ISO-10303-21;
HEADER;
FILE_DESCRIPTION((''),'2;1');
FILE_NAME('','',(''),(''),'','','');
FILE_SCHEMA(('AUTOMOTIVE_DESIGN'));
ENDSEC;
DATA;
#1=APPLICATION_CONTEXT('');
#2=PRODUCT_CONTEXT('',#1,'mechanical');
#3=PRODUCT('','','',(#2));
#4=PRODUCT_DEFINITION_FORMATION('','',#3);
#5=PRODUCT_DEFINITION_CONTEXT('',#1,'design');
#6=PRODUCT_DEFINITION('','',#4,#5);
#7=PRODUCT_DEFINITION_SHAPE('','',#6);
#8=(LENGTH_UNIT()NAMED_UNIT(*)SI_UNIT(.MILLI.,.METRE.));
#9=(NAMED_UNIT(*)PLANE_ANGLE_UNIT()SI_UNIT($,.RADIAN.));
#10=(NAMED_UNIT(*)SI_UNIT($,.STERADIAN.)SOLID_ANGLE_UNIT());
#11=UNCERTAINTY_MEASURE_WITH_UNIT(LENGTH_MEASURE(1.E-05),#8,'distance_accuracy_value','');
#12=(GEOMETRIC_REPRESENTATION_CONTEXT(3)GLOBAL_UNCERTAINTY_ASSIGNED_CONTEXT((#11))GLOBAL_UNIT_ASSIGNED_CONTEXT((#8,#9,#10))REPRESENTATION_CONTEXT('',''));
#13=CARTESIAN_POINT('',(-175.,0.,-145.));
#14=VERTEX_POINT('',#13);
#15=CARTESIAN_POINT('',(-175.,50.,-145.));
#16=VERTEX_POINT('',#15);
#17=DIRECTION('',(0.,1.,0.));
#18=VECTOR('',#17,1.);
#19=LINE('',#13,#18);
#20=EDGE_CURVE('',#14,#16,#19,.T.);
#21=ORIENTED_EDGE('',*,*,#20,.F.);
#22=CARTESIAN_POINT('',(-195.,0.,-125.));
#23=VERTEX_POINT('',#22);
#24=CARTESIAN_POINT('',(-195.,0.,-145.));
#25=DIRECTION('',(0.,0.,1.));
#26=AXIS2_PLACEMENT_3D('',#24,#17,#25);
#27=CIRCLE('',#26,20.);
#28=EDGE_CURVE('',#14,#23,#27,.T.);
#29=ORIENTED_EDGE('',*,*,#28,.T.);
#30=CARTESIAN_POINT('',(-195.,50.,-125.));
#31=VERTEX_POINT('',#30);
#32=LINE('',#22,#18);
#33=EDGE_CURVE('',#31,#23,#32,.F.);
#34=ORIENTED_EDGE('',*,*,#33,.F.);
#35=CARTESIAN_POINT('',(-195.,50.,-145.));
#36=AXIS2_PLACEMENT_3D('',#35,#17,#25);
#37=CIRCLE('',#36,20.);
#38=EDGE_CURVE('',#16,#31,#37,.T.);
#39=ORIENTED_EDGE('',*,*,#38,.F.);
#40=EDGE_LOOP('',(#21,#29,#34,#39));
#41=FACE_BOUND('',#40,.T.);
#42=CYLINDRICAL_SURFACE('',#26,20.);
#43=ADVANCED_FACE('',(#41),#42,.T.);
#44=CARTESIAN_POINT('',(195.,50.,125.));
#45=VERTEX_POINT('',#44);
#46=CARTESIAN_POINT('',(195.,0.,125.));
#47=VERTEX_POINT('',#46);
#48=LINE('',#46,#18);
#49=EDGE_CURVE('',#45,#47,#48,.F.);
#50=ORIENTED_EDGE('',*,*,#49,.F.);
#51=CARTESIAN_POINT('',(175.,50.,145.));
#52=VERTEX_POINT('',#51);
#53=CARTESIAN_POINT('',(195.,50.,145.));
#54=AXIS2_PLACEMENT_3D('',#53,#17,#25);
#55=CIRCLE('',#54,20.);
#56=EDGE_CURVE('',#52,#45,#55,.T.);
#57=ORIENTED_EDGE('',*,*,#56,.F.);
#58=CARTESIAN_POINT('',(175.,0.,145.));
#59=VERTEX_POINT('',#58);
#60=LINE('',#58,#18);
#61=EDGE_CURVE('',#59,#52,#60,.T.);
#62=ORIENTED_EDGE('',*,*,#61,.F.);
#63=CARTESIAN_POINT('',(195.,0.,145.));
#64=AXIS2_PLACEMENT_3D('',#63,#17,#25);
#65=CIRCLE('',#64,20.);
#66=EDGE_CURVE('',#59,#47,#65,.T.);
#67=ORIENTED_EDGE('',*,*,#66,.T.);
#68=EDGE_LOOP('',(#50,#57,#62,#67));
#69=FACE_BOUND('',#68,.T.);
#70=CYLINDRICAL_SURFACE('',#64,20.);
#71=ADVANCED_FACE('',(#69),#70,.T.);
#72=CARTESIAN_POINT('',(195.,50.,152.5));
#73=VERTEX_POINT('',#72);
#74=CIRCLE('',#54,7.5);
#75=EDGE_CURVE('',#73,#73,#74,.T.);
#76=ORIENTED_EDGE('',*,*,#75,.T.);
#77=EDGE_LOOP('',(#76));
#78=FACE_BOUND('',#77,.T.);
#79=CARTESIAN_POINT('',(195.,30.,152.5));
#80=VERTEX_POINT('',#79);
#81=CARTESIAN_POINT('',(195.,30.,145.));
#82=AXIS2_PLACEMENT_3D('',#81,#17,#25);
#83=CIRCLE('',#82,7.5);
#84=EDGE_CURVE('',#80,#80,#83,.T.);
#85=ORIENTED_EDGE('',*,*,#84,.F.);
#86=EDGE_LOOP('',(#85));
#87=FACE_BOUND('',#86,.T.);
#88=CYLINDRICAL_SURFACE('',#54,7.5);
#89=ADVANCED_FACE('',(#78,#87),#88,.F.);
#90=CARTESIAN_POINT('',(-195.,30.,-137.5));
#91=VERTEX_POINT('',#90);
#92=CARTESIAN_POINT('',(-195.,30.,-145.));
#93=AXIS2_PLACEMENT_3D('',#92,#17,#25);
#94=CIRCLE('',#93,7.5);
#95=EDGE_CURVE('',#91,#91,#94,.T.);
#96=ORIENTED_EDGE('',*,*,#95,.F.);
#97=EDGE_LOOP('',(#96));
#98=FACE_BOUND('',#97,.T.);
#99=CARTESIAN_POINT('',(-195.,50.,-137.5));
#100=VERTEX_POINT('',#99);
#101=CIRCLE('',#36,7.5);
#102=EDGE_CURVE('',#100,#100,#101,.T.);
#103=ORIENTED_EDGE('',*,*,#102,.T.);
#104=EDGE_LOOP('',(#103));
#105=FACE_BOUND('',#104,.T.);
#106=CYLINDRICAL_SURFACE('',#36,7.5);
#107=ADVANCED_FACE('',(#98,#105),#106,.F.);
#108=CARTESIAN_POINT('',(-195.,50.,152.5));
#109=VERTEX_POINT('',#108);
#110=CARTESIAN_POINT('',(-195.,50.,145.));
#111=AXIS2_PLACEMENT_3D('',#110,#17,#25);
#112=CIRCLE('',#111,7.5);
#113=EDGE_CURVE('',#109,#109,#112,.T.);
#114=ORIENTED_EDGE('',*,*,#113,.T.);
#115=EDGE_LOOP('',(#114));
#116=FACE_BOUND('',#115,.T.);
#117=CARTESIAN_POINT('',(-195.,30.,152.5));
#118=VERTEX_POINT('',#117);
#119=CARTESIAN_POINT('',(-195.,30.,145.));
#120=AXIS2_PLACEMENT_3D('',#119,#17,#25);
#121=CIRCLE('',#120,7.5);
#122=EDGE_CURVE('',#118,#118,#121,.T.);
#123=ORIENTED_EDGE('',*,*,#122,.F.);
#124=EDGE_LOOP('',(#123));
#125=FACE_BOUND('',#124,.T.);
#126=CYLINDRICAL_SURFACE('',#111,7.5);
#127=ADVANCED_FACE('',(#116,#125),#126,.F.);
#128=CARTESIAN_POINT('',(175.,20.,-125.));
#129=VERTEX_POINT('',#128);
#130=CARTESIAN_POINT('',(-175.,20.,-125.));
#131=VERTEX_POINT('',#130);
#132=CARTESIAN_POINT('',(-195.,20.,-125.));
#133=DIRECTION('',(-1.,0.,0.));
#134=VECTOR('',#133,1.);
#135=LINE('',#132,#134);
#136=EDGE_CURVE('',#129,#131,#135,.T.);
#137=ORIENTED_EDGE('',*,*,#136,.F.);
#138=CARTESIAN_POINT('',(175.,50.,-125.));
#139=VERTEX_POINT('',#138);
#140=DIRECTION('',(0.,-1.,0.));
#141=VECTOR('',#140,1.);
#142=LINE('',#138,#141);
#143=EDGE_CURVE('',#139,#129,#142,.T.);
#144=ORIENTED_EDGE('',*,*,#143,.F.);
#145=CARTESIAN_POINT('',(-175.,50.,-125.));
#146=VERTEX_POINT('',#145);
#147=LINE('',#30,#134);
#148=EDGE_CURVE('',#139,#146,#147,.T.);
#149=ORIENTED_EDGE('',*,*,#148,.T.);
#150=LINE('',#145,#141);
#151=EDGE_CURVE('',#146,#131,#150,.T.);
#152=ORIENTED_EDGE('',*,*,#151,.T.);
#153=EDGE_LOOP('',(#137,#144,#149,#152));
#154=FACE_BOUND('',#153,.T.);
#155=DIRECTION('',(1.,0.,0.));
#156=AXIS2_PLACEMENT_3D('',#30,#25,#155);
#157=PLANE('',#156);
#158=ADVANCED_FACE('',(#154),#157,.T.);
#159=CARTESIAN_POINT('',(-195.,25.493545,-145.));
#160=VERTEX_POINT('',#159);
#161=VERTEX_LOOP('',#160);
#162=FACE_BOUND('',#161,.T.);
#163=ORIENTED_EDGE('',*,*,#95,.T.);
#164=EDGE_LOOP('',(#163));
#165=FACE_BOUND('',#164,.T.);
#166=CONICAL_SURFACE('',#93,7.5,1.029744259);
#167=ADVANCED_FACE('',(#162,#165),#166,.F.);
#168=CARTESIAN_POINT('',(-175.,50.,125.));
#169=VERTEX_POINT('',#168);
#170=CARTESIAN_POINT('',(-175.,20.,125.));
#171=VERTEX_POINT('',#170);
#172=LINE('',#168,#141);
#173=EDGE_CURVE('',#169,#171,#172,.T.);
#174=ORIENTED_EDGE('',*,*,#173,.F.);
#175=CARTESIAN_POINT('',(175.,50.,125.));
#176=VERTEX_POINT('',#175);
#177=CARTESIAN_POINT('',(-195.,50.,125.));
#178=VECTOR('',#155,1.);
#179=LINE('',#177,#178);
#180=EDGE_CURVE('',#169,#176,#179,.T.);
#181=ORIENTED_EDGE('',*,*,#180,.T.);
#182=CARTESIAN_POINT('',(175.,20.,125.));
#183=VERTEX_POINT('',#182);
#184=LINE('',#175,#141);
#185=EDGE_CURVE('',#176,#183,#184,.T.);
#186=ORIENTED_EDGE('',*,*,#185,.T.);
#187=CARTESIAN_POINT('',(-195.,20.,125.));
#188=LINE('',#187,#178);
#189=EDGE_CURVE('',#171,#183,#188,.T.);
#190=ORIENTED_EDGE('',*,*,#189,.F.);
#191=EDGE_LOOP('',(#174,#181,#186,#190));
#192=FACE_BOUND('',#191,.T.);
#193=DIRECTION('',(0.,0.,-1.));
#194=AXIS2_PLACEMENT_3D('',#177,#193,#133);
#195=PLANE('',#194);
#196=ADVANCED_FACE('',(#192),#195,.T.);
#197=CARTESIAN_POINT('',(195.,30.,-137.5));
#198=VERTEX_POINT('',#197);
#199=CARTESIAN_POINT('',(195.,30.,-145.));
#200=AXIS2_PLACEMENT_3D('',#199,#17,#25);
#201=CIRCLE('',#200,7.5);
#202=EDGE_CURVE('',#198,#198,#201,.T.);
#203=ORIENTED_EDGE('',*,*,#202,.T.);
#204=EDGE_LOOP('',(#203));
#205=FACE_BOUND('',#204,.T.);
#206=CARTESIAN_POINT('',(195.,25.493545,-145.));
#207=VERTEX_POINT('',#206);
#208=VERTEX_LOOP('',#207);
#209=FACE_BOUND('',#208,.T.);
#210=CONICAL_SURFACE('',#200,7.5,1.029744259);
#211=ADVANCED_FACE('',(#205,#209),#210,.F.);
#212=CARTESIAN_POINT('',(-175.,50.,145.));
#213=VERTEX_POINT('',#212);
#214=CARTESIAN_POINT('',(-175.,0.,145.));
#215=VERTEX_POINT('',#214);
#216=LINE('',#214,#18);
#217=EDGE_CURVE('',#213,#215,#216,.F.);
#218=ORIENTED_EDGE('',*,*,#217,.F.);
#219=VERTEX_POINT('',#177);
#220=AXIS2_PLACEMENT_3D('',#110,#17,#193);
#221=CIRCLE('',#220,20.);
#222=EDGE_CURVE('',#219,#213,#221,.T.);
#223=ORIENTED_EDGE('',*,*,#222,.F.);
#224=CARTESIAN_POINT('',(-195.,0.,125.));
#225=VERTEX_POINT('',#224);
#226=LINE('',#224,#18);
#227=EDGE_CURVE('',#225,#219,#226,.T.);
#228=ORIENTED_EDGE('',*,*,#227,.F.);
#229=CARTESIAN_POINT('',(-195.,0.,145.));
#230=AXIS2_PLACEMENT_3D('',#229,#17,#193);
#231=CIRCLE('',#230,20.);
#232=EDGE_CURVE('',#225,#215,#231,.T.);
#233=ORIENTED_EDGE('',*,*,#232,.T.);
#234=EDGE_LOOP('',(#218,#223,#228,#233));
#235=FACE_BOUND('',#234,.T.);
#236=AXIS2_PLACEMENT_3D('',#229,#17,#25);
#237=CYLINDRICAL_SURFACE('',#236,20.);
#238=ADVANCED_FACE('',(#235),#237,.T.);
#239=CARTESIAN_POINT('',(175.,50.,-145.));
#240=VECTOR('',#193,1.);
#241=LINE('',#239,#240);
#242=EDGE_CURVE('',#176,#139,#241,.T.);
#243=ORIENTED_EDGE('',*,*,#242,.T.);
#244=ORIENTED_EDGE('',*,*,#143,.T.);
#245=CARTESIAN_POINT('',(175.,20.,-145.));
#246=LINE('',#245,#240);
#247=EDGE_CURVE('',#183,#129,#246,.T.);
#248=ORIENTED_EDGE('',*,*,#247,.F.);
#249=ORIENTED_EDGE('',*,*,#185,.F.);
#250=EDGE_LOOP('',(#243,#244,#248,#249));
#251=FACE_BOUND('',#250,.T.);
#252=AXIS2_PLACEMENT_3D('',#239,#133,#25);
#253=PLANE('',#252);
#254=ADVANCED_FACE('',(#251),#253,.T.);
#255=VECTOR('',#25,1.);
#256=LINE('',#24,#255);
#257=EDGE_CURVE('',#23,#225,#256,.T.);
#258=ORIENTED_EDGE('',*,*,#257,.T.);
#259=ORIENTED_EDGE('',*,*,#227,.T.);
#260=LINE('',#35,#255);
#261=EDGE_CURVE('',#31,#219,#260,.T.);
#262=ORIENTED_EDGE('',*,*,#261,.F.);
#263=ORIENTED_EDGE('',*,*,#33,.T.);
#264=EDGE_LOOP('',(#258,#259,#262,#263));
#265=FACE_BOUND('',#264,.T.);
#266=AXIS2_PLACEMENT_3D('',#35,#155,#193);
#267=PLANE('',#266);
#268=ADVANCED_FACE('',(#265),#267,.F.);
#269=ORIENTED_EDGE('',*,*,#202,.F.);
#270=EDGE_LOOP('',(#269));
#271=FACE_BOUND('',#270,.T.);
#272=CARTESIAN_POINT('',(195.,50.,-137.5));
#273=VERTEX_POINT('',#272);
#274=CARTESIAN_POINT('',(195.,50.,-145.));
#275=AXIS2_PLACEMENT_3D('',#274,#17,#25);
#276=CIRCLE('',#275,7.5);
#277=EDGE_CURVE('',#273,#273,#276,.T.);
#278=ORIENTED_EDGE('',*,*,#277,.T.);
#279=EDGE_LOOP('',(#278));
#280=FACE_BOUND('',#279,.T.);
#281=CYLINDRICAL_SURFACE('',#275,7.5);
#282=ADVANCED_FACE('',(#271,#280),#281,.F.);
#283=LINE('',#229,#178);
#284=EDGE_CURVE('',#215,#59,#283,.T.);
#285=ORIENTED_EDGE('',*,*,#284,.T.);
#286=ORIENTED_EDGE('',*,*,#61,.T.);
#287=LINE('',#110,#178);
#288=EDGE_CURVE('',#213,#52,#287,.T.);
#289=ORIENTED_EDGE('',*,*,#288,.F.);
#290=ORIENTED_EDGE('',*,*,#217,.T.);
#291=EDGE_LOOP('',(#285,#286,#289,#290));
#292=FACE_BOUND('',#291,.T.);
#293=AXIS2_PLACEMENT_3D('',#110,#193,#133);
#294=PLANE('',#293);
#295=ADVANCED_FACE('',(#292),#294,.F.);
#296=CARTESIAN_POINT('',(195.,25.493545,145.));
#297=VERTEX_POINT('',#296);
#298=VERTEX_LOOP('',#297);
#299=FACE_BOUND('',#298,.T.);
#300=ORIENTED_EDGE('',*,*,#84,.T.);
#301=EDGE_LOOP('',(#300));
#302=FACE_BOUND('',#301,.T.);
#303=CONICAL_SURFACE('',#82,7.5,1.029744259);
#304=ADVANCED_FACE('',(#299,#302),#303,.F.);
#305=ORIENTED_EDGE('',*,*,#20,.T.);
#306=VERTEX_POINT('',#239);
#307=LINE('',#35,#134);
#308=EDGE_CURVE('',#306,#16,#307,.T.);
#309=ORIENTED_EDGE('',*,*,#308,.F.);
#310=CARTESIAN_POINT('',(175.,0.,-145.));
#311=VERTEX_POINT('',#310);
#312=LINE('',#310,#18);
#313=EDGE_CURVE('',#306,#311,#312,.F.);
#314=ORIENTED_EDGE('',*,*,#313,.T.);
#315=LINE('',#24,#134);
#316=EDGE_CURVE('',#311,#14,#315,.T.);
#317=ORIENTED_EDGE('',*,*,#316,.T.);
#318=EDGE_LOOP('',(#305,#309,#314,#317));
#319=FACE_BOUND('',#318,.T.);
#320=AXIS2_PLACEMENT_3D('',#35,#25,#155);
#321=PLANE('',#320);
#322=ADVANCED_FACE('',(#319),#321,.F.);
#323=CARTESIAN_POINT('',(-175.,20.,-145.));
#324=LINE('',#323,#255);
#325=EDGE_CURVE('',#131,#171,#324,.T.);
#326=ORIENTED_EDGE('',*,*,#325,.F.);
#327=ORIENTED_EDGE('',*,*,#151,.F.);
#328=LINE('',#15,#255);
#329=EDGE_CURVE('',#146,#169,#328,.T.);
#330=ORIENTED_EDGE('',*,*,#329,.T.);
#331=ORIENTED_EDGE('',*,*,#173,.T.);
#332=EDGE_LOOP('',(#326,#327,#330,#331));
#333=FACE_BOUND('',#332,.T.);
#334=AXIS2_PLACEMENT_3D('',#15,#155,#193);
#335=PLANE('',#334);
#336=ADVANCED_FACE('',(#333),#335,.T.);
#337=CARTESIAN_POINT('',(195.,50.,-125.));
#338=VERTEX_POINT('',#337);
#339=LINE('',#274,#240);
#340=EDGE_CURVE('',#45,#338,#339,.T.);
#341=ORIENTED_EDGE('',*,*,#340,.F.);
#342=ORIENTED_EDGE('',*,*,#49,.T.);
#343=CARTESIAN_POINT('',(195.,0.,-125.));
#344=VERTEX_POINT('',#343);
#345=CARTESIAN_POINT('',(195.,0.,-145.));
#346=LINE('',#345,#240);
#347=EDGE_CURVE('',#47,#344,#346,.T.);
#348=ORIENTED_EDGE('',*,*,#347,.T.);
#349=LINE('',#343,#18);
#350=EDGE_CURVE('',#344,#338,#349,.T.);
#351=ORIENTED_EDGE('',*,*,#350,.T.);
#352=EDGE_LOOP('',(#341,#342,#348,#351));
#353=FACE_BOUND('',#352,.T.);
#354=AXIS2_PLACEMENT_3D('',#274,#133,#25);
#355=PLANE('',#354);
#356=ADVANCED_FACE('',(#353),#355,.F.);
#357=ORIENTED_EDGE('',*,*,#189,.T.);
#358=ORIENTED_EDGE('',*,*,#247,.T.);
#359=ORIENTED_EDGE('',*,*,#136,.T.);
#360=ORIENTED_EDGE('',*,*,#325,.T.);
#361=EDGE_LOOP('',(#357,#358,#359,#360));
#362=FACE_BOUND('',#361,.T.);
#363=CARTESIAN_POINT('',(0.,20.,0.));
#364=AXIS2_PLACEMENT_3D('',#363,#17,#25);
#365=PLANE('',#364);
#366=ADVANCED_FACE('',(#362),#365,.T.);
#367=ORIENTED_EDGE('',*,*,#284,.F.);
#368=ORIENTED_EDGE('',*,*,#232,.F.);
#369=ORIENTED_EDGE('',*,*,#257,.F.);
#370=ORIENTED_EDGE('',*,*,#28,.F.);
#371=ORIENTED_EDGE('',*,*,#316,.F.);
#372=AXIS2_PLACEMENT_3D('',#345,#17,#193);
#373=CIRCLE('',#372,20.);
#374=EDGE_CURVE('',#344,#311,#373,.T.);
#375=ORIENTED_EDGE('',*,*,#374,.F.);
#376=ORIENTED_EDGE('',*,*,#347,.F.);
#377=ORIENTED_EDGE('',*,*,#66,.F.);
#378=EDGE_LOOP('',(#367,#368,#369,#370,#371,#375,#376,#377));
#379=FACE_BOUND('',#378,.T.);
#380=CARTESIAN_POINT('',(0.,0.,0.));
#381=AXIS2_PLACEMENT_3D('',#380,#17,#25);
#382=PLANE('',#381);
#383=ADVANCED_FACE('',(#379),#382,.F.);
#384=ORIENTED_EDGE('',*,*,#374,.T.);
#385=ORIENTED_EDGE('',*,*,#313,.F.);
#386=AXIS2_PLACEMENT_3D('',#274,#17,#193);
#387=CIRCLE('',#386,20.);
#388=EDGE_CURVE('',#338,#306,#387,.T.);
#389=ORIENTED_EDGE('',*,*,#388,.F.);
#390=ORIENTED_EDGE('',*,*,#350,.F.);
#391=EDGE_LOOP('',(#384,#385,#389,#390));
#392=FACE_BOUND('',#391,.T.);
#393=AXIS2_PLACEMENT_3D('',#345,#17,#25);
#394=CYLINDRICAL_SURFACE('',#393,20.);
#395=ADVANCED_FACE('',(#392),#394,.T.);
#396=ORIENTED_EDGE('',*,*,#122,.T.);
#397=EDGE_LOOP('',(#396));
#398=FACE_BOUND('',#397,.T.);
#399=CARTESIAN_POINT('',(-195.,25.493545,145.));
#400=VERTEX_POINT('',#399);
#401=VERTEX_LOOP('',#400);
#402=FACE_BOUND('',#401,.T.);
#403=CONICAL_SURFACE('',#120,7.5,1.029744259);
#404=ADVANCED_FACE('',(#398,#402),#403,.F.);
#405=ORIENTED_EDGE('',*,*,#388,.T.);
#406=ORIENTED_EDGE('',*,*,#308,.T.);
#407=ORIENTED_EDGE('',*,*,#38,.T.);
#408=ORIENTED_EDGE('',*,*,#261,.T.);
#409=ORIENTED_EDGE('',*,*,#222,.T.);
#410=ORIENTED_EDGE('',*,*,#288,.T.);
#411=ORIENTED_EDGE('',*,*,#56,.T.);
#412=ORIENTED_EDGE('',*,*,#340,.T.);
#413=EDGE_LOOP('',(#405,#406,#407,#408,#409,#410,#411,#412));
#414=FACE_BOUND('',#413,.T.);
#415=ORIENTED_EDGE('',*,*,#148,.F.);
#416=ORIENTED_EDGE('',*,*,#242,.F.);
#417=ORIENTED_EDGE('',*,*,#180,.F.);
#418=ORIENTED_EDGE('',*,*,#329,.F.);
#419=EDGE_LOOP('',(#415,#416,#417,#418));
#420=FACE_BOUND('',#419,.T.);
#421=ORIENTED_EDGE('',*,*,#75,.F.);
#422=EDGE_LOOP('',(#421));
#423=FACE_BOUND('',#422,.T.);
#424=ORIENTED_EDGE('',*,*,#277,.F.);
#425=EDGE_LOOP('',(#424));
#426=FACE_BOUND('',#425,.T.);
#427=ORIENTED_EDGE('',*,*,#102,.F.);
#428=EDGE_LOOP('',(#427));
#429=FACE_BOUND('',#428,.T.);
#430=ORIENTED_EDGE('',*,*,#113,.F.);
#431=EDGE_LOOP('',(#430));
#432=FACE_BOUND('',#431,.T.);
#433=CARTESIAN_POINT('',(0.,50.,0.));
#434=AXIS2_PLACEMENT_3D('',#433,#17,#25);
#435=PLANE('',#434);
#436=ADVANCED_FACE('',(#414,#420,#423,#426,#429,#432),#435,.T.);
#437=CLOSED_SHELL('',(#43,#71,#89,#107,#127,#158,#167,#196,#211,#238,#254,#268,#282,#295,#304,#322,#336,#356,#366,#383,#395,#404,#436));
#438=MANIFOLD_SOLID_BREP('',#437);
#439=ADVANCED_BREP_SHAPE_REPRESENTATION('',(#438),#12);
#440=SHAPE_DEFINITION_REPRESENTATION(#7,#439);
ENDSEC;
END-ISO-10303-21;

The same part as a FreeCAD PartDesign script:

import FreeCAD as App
import Part
import Sketcher

V = App.Vector
Q = App.Units.Quantity


def faces_at(feature, points):
    """Names of the faces that lie closest to the given points."""
    faces = feature.Shape.Faces
    near = lambda p: min(range(len(faces)), key=lambda i: faces[i].distToShape(Part.Vertex(*p))[0])
    return sorted({f"Face{near(p) + 1}" for p in points})

doc = App.newDocument("Part")
params = doc.addObject("Spreadsheet::Sheet", "Params")
for row, (alias, value) in enumerate([
    ("sketch1_width", "390 mm"),
    ("sketch1_height", "290 mm"),
    ("pad1_length", "50 mm"),
    ("thickness_wall", "20 mm"),
    ("sketch2_diameter", "40 mm"),
    ("pad2_length", "50 mm"),
    ("sketch3_diameter", "15 mm"),
    ("hole_diameter", "15 mm"),
    ("hole_depth", "20 mm"),
], start=1):
    params.set(f"A{row}", alias)
    params.set(f"B{row}", "=" + value)
    params.setAlias(f"B{row}", alias)

body = doc.addObject("PartDesign::Body", "Body")

sketch1 = body.newObject("Sketcher::SketchObject", "Sketch")
sketch1.AttachmentSupport = (doc.getObject("XZ_Plane"), [""])
sketch1.MapMode = "FlatFace"
sketch1.addGeometry(Part.LineSegment(V(-195, -145, 0), V(-195, 145, 0)), False)
sketch1.addGeometry(Part.LineSegment(V(-195, 145, 0), V(195, 145, 0)), False)
sketch1.addGeometry(Part.LineSegment(V(195, 145, 0), V(195, -145, 0)), False)
sketch1.addGeometry(Part.LineSegment(V(195, -145, 0), V(-195, -145, 0)), False)
sketch1.addConstraint(Sketcher.Constraint("Coincident", 0, 2, 1, 1))
sketch1.addConstraint(Sketcher.Constraint("Coincident", 1, 2, 2, 1))
sketch1.addConstraint(Sketcher.Constraint("Coincident", 2, 2, 3, 1))
sketch1.addConstraint(Sketcher.Constraint("Coincident", 3, 2, 0, 1))
sketch1.addConstraint(Sketcher.Constraint("Vertical", 0))
sketch1.addConstraint(Sketcher.Constraint("Horizontal", 1))
sketch1.addConstraint(Sketcher.Constraint("Vertical", 2))
sketch1.addConstraint(Sketcher.Constraint("Horizontal", 3))
sketch1.addConstraint(Sketcher.Constraint("Symmetric", 0, 2, 2, 2, -1, 1))
sketch1.addConstraint(Sketcher.Constraint("DistanceX", 1, 1, 1, 2, Q("390 mm")))
sketch1.addConstraint(Sketcher.Constraint("DistanceY", 0, 1, 0, 2, Q("290 mm")))
sketch1.setExpression("Constraints[9]", "Params.sketch1_width")
sketch1.setExpression("Constraints[10]", "Params.sketch1_height")
pad1 = body.newObject("PartDesign::Pad", "Pad")
pad1.Profile = sketch1
pad1.setExpression("Length", "Params.pad1_length")
pad1.Reversed = True
doc.recompute()

thickness = body.newObject("PartDesign::Thickness", "Thickness")
thickness.Base = (pad1, faces_at(pad1, [(0, 50, 0)]))
thickness.setExpression("Value", "Params.thickness_wall")
thickness.Reversed = True
thickness.Join = "Intersection"

sketch2 = body.newObject("Sketcher::SketchObject", "Sketch001")
sketch2.AttachmentSupport = (doc.getObject("XZ_Plane"), [""])
sketch2.MapMode = "FlatFace"
sketch2.AttachmentOffset = App.Placement(V(0, 0, -50), App.Rotation())
sketch2.addGeometry(Part.Circle(V(-195, -145, 0), V(0, 0, 1), 20), False)
sketch2.addGeometry(Part.Circle(V(195, -145, 0), V(0, 0, 1), 20), False)
sketch2.addGeometry(Part.Circle(V(195, 145, 0), V(0, 0, 1), 20), False)
sketch2.addGeometry(Part.Circle(V(-195, 145, 0), V(0, 0, 1), 20), False)
sketch2.addConstraint(Sketcher.Constraint("Equal", 0, 1))
sketch2.addConstraint(Sketcher.Constraint("Equal", 1, 2))
sketch2.addConstraint(Sketcher.Constraint("Equal", 2, 3))
sketch2.addConstraint(Sketcher.Constraint("Symmetric", 0, 3, 2, 3, -1, 1))
sketch2.addConstraint(Sketcher.Constraint("Symmetric", 1, 3, 3, 3, -1, 1))
sketch2.addConstraint(Sketcher.Constraint("Symmetric", 0, 3, 1, 3, -2))
sketch2.addConstraint(Sketcher.Constraint("Diameter", 0, Q("40 mm")))
sketch2.addConstraint(Sketcher.Constraint("DistanceX", 0, 3, -1, 1, Q("195 mm")))
sketch2.addConstraint(Sketcher.Constraint("DistanceY", 0, 3, -1, 1, Q("145 mm")))
sketch2.setExpression("Constraints[6]", "Params.sketch2_diameter")
pad2 = body.newObject("PartDesign::Pad", "Pad001")
pad2.Profile = sketch2
pad2.setExpression("Length", "Params.pad2_length")

sketch3 = body.newObject("Sketcher::SketchObject", "Sketch002")
sketch3.AttachmentSupport = (doc.getObject("XZ_Plane"), [""])
sketch3.MapMode = "FlatFace"
sketch3.AttachmentOffset = App.Placement(V(0, 0, -50), App.Rotation())
sketch3.addGeometry(Part.Circle(V(-195, -145, 0), V(0, 0, 1), 7.5), False)
sketch3.addGeometry(Part.Circle(V(195, -145, 0), V(0, 0, 1), 7.5), False)
sketch3.addGeometry(Part.Circle(V(195, 145, 0), V(0, 0, 1), 7.5), False)
sketch3.addGeometry(Part.Circle(V(-195, 145, 0), V(0, 0, 1), 7.5), False)
sketch3.addConstraint(Sketcher.Constraint("Equal", 0, 1))
sketch3.addConstraint(Sketcher.Constraint("Equal", 1, 2))
sketch3.addConstraint(Sketcher.Constraint("Equal", 2, 3))
sketch3.addConstraint(Sketcher.Constraint("Symmetric", 0, 3, 2, 3, -1, 1))
sketch3.addConstraint(Sketcher.Constraint("Symmetric", 1, 3, 3, 3, -1, 1))
sketch3.addConstraint(Sketcher.Constraint("Symmetric", 0, 3, 1, 3, -2))
sketch3.addConstraint(Sketcher.Constraint("Diameter", 0, Q("15 mm")))
sketch3.addConstraint(Sketcher.Constraint("DistanceX", 0, 3, -1, 1, Q("195 mm")))
sketch3.addConstraint(Sketcher.Constraint("DistanceY", 0, 3, -1, 1, Q("145 mm")))
sketch3.setExpression("Constraints[6]", "Params.sketch3_diameter")
doc.recompute()
hole = body.newObject("PartDesign::Hole", "Hole")
hole.Profile = sketch3
hole.ThreadType = "None"
hole.setExpression("Diameter", "Params.hole_diameter")
hole.DepthType = "Dimension"
hole.setExpression("Depth", "Params.hole_depth")
hole.DrillPoint = "Angled"
hole.DrillPointAngle = 118
hole.Reversed = True

doc.recompute()
